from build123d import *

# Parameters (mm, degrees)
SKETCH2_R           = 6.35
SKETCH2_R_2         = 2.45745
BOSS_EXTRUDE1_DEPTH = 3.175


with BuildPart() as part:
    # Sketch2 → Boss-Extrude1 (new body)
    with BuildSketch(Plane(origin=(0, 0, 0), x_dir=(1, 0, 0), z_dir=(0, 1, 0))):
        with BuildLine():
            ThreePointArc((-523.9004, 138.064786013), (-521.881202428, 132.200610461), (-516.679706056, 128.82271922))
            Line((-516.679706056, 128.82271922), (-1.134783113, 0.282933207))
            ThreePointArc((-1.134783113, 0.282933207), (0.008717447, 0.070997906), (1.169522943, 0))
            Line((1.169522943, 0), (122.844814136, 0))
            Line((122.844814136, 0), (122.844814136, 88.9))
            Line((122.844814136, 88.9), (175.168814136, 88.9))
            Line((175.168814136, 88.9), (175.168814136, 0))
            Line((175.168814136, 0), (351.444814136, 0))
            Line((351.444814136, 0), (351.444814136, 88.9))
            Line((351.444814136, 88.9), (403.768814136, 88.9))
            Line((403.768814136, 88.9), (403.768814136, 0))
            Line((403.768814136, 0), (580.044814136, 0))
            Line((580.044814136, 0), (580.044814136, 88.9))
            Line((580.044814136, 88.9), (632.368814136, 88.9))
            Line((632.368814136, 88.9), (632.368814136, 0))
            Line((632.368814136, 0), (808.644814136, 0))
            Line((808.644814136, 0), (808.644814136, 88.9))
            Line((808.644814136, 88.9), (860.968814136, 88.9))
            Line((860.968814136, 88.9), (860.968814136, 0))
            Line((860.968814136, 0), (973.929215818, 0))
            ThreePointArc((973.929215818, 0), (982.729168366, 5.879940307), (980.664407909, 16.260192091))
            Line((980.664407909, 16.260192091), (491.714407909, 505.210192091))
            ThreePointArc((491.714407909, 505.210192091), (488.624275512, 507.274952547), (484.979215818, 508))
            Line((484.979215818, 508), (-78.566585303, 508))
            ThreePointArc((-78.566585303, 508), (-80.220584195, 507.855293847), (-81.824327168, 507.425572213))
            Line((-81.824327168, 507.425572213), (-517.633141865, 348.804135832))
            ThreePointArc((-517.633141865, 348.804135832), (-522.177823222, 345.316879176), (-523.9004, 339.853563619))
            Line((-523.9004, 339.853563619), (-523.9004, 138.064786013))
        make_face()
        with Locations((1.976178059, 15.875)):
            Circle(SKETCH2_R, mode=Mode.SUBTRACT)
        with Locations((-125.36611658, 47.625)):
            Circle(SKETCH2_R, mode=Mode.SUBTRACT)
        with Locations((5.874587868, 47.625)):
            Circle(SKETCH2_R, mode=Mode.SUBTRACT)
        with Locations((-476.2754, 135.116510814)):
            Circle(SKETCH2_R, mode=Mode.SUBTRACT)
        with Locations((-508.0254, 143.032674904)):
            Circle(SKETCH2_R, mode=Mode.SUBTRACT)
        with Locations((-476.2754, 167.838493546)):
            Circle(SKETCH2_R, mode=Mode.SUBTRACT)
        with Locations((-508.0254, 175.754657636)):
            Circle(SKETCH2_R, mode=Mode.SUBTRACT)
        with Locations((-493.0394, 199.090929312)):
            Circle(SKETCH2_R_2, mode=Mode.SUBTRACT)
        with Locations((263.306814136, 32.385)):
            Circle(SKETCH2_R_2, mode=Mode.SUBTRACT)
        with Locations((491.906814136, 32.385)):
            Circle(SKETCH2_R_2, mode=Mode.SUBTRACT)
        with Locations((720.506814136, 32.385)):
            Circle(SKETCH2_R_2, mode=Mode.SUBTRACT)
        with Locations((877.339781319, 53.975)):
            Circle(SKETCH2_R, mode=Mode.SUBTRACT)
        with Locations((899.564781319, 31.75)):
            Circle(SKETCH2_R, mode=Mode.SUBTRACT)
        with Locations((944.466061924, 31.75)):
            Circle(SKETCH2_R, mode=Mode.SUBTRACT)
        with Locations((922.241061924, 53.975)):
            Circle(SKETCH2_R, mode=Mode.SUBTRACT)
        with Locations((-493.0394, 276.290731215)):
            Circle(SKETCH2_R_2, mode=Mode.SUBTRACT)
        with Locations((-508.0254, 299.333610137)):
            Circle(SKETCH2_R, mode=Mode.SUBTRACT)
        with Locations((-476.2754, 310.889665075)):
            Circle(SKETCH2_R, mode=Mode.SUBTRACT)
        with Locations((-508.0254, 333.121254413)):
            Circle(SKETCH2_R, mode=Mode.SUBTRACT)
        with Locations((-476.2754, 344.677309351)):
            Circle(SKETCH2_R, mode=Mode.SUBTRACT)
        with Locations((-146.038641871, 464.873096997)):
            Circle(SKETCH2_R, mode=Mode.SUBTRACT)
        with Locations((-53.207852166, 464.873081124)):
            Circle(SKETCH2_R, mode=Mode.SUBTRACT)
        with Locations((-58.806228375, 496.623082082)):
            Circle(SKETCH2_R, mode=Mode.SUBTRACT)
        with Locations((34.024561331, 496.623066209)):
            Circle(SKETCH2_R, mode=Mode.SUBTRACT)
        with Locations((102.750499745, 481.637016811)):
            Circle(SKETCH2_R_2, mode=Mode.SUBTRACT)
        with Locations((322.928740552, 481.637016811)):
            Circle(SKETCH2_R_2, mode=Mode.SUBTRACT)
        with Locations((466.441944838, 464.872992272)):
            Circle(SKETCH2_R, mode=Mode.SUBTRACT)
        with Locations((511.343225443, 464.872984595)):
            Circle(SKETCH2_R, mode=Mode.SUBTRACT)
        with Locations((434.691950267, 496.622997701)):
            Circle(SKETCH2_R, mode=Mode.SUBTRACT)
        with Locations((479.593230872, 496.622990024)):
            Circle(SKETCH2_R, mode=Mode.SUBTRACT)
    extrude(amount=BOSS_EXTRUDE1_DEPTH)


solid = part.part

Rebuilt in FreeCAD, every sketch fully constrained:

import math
import FreeCAD as App
import Part
import Sketcher
Q = App.Units.Quantity

doc = App.newDocument("Part")
params = doc.addObject("Spreadsheet::Sheet", "Params")
for row, (alias, value) in enumerate([
    ("sketch1_diameter", "0.5 in"),
    ("sketch1_height", "3.5 in"),
    ("sketch1_radius", "0.375 in"),
    ("sketch1_width", "2.06 in"),
    ("sketch1_width2", "6.94 in"),
    ("pad1_length", "0.125 in"),
], start=1):
    params.set(f"A{row}", alias)
    params.set(f"B{row}", "=" + value)
    params.setAlias(f"B{row}", alias)

body = doc.addObject("PartDesign::Body", "Body")

sketch1 = body.newObject("Sketcher::SketchObject", "Sketch")
sketch1.AttachmentSupport = (doc.getObject("XZ_Plane"), [""])
sketch1.MapMode = "FlatFace"
sketch1.addGeometry(Part.ArcOfCircle(Part.Circle(App.Vector(-514.4, -138.1, 0), App.Vector(0, 0, 1), 9.5), math.radians(104), math.radians(180)), False)
sketch1.addGeometry(Part.LineSegment(App.Vector(-516.7, -128.8, 0), App.Vector(-1.1, -0.3, 0)), False)
sketch1.addGeometry(Part.ArcOfCircle(Part.Circle(App.Vector(1.2, -9.5, 0), App.Vector(0, 0, 1), 9.5), math.radians(90), math.radians(104)), False)
sketch1.addGeometry(Part.LineSegment(App.Vector(1.2, 0, 0), App.Vector(122.8, 0, 0)), False)
sketch1.addGeometry(Part.LineSegment(App.Vector(122.8, 0, 0), App.Vector(122.8, -88.9, 0)), False)
sketch1.addGeometry(Part.LineSegment(App.Vector(122.8, -88.9, 0), App.Vector(175.2, -88.9, 0)), False)
sketch1.addGeometry(Part.LineSegment(App.Vector(175.2, -88.9, 0), App.Vector(175.2, 0, 0)), False)
sketch1.addGeometry(Part.LineSegment(App.Vector(175.2, 0, 0), App.Vector(351.4, 0, 0)), False)
sketch1.addGeometry(Part.LineSegment(App.Vector(351.4, 0, 0), App.Vector(351.4, -88.9, 0)), False)
sketch1.addGeometry(Part.LineSegment(App.Vector(351.4, -88.9, 0), App.Vector(403.8, -88.9, 0)), False)
sketch1.addGeometry(Part.LineSegment(App.Vector(403.8, -88.9, 0), App.Vector(403.8, 0, 0)), False)
sketch1.addGeometry(Part.LineSegment(App.Vector(403.8, 0, 0), App.Vector(580, 0, 0)), False)
sketch1.addGeometry(Part.LineSegment(App.Vector(580, 0, 0), App.Vector(580, -88.9, 0)), False)
sketch1.addGeometry(Part.LineSegment(App.Vector(580, -88.9, 0), App.Vector(632.4, -88.9, 0)), False)
sketch1.addGeometry(Part.LineSegment(App.Vector(632.4, -88.9, 0), App.Vector(632.4, 0, 0)), False)
sketch1.addGeometry(Part.LineSegment(App.Vector(632.4, 0, 0), App.Vector(808.6, 0, 0)), False)
sketch1.addGeometry(Part.LineSegment(App.Vector(808.6, 0, 0), App.Vector(808.6, -88.9, 0)), False)
sketch1.addGeometry(Part.LineSegment(App.Vector(808.6, -88.9, 0), App.Vector(861, -88.9, 0)), False)
sketch1.addGeometry(Part.LineSegment(App.Vector(861, -88.9, 0), App.Vector(861, 0, 0)), False)
sketch1.addGeometry(Part.LineSegment(App.Vector(861, 0, 0), App.Vector(973.9, 0, 0)), False)
sketch1.addGeometry(Part.ArcOfCircle(Part.Circle(App.Vector(973.9, -9.5, 0), App.Vector(0, 0, 1), 9.5), math.radians(-45), math.radians(90)), False)
sketch1.addGeometry(Part.LineSegment(App.Vector(980.7, -16.3, 0), App.Vector(491.7, -505.2, 0)), False)
sketch1.addGeometry(Part.ArcOfCircle(Part.Circle(App.Vector(485, -498.5, 0), App.Vector(0, 0, 1), 9.5), math.radians(-90), math.radians(-45)), False)
sketch1.addGeometry(Part.LineSegment(App.Vector(485, -508, 0), App.Vector(-78.6, -508, 0)), False)
sketch1.addGeometry(Part.ArcOfCircle(Part.Circle(App.Vector(-78.6, -498.5, 0), App.Vector(0, 0, 1), 9.5), math.radians(-110), math.radians(-90)), False)
sketch1.addGeometry(Part.LineSegment(App.Vector(-81.8, -507.4, 0), App.Vector(-517.6, -348.8, 0)), False)
sketch1.addGeometry(Part.ArcOfCircle(Part.Circle(App.Vector(-514.4, -339.9, 0), App.Vector(0, 0, 1), 9.5), math.radians(180), math.radians(250)), False)
sketch1.addGeometry(Part.LineSegment(App.Vector(-523.9, -339.9, 0), App.Vector(-523.9, -138.1, 0)), False)
sketch1.addGeometry(Part.Circle(App.Vector(2, -15.9, 0), App.Vector(0, 0, 1), 6.3), False)
sketch1.addGeometry(Part.Circle(App.Vector(-125.4, -47.6, 0), App.Vector(0, 0, 1), 6.3), False)
sketch1.addGeometry(Part.Circle(App.Vector(5.9, -47.6, 0), App.Vector(0, 0, 1), 6.3), False)
sketch1.addGeometry(Part.Circle(App.Vector(-476.3, -135.1, 0), App.Vector(0, 0, 1), 6.3), False)
sketch1.addGeometry(Part.Circle(App.Vector(-508, -143, 0), App.Vector(0, 0, 1), 6.3), False)
sketch1.addGeometry(Part.Circle(App.Vector(-476.3, -167.8, 0), App.Vector(0, 0, 1), 6.3), False)
sketch1.addGeometry(Part.Circle(App.Vector(-508, -175.8, 0), App.Vector(0, 0, 1), 6.3), False)
sketch1.addGeometry(Part.Circle(App.Vector(-493, -199.1, 0), App.Vector(0, 0, 1), 2.5), False)
sketch1.addGeometry(Part.Circle(App.Vector(263.3, -32.4, 0), App.Vector(0, 0, 1), 2.5), False)
sketch1.addGeometry(Part.Circle(App.Vector(491.9, -32.4, 0), App.Vector(0, 0, 1), 2.5), False)
sketch1.addGeometry(Part.Circle(App.Vector(720.5, -32.4, 0), App.Vector(0, 0, 1), 2.5), False)
sketch1.addGeometry(Part.Circle(App.Vector(899.6, -31.8, 0), App.Vector(0, 0, 1), 6.3), False)
sketch1.addGeometry(Part.Circle(App.Vector(944.5, -31.8, 0), App.Vector(0, 0, 1), 6.3), False)
sketch1.addGeometry(Part.Circle(App.Vector(877.3, -54, 0), App.Vector(0, 0, 1), 6.3), False)
sketch1.addGeometry(Part.Circle(App.Vector(922.2, -54, 0), App.Vector(0, 0, 1), 6.3), False)
sketch1.addGeometry(Part.Circle(App.Vector(-493, -276.3, 0), App.Vector(0, 0, 1), 2.5), False)
sketch1.addGeometry(Part.Circle(App.Vector(-508, -299.3, 0), App.Vector(0, 0, 1), 6.3), False)
sketch1.addGeometry(Part.Circle(App.Vector(-476.3, -310.9, 0), App.Vector(0, 0, 1), 6.3), False)
sketch1.addGeometry(Part.Circle(App.Vector(-508, -333.1, 0), App.Vector(0, 0, 1), 6.3), False)
sketch1.addGeometry(Part.Circle(App.Vector(-476.3, -344.7, 0), App.Vector(0, 0, 1), 6.3), False)
sketch1.addGeometry(Part.Circle(App.Vector(-146, -464.9, 0), App.Vector(0, 0, 1), 6.3), False)
sketch1.addGeometry(Part.Circle(App.Vector(-53.2, -464.9, 0), App.Vector(0, 0, 1), 6.3), False)
sketch1.addGeometry(Part.Circle(App.Vector(-58.8, -496.6, 0), App.Vector(0, 0, 1), 6.3), False)
sketch1.addGeometry(Part.Circle(App.Vector(34, -496.6, 0), App.Vector(0, 0, 1), 6.3), False)
sketch1.addGeometry(Part.Circle(App.Vector(102.8, -481.6, 0), App.Vector(0, 0, 1), 2.5), False)
sketch1.addGeometry(Part.Circle(App.Vector(322.9, -481.6, 0), App.Vector(0, 0, 1), 2.5), False)
sketch1.addGeometry(Part.Circle(App.Vector(466.4, -464.9, 0), App.Vector(0, 0, 1), 6.3), False)
sketch1.addGeometry(Part.Circle(App.Vector(511.3, -464.9, 0), App.Vector(0, 0, 1), 6.3), False)
sketch1.addGeometry(Part.Circle(App.Vector(434.7, -496.6, 0), App.Vector(0, 0, 1), 6.3), False)
sketch1.addGeometry(Part.Circle(App.Vector(479.6, -496.6, 0), App.Vector(0, 0, 1), 6.3), False)
sketch1.addConstraint(Sketcher.Constraint("Tangent", 0, 1, 1, 1))
sketch1.addConstraint(Sketcher.Constraint("Tangent", 1, 2, 2, 2))
sketch1.addConstraint(Sketcher.Constraint("Tangent", 2, 1, 3, 1))
sketch1.addConstraint(Sketcher.Constraint("Coincident", 3, 2, 4, 1))
sketch1.addConstraint(Sketcher.Constraint("Coincident", 4, 2, 5, 1))
sketch1.addConstraint(Sketcher.Constraint("Coincident", 5, 2, 6, 1))
sketch1.addConstraint(Sketcher.Constraint("Coincident", 6, 2, 7, 1))
sketch1.addConstraint(Sketcher.Constraint("Coincident", 7, 2, 8, 1))
sketch1.addConstraint(Sketcher.Constraint("Coincident", 8, 2, 9, 1))
sketch1.addConstraint(Sketcher.Constraint("Coincident", 9, 2, 10, 1))
sketch1.addConstraint(Sketcher.Constraint("Coincident", 10, 2, 11, 1))
sketch1.addConstraint(Sketcher.Constraint("Coincident", 11, 2, 12, 1))
sketch1.addConstraint(Sketcher.Constraint("Coincident", 12, 2, 13, 1))
sketch1.addConstraint(Sketcher.Constraint("Coincident", 13, 2, 14, 1))
sketch1.addConstraint(Sketcher.Constraint("Coincident", 14, 2, 15, 1))
sketch1.addConstraint(Sketcher.Constraint("Coincident", 15, 2, 16, 1))
sketch1.addConstraint(Sketcher.Constraint("Coincident", 16, 2, 17, 1))
sketch1.addConstraint(Sketcher.Constraint("Coincident", 17, 2, 18, 1))
sketch1.addConstraint(Sketcher.Constraint("Coincident", 18, 2, 19, 1))
sketch1.addConstraint(Sketcher.Constraint("Tangent", 19, 2, 20, 2))
sketch1.addConstraint(Sketcher.Constraint("Tangent", 20, 1, 21, 1))
sketch1.addConstraint(Sketcher.Constraint("Tangent", 21, 2, 22, 2))
sketch1.addConstraint(Sketcher.Constraint("Tangent", 22, 1, 23, 1))
sketch1.addConstraint(Sketcher.Constraint("Tangent", 23, 2, 24, 2))
sketch1.addConstraint(Sketcher.Constraint("Tangent", 24, 1, 25, 1))
sketch1.addConstraint(Sketcher.Constraint("Tangent", 25, 2, 26, 2))
sketch1.addConstraint(Sketcher.Constraint("Tangent", 26, 1, 27, 1))
sketch1.addConstraint(Sketcher.Constraint("Tangent", 27, 2, 0, 2))
sketch1.addConstraint(Sketcher.Constraint("Horizontal", 3))
sketch1.addConstraint(Sketcher.Constraint("Vertical", 4))
sketch1.addConstraint(Sketcher.Constraint("Horizontal", 5))
sketch1.addConstraint(Sketcher.Constraint("Vertical", 6))
sketch1.addConstraint(Sketcher.Constraint("Horizontal", 7))
sketch1.addConstraint(Sketcher.Constraint("Vertical", 8))
sketch1.addConstraint(Sketcher.Constraint("Horizontal", 9))
sketch1.addConstraint(Sketcher.Constraint("Vertical", 10))
sketch1.addConstraint(Sketcher.Constraint("Horizontal", 11))
sketch1.addConstraint(Sketcher.Constraint("Vertical", 12))
sketch1.addConstraint(Sketcher.Constraint("Horizontal", 13))
sketch1.addConstraint(Sketcher.Constraint("Vertical", 14))
sketch1.addConstraint(Sketcher.Constraint("Horizontal", 15))
sketch1.addConstraint(Sketcher.Constraint("Vertical", 16))
sketch1.addConstraint(Sketcher.Constraint("Horizontal", 17))
sketch1.addConstraint(Sketcher.Constraint("Vertical", 18))
sketch1.addConstraint(Sketcher.Constraint("Horizontal", 19))
sketch1.addConstraint(Sketcher.Constraint("Horizontal", 23))
sketch1.addConstraint(Sketcher.Constraint("Vertical", 27))
sketch1.addConstraint(Sketcher.Constraint("Equal", 0, 2))
sketch1.addConstraint(Sketcher.Constraint("Equal", 2, 20))
sketch1.addConstraint(Sketcher.Constraint("Equal", 20, 22))
sketch1.addConstraint(Sketcher.Constraint("Equal", 22, 24))
sketch1.addConstraint(Sketcher.Constraint("Equal", 24, 26))
sketch1.addConstraint(Sketcher.Constraint("Equal", 28, 29))
sketch1.addConstraint(Sketcher.Constraint("Equal", 29, 30))
sketch1.addConstraint(Sketcher.Constraint("Equal", 30, 31))
sketch1.addConstraint(Sketcher.Constraint("Equal", 31, 32))
sketch1.addConstraint(Sketcher.Constraint("Equal", 32, 33))
sketch1.addConstraint(Sketcher.Constraint("Equal", 33, 34))
sketch1.addConstraint(Sketcher.Constraint("Equal", 35, 36))
sketch1.addConstraint(Sketcher.Constraint("Equal", 36, 37))
sketch1.addConstraint(Sketcher.Constraint("Equal", 37, 38))
sketch1.addConstraint(Sketcher.Constraint("Equal", 34, 39))
sketch1.addConstraint(Sketcher.Constraint("Equal", 39, 40))
sketch1.addConstraint(Sketcher.Constraint("Equal", 40, 41))
sketch1.addConstraint(Sketcher.Constraint("Equal", 41, 42))
sketch1.addConstraint(Sketcher.Constraint("Equal", 38, 43))
sketch1.addConstraint(Sketcher.Constraint("Equal", 42, 44))
sketch1.addConstraint(Sketcher.Constraint("Equal", 44, 45))
sketch1.addConstraint(Sketcher.Constraint("Equal", 45, 46))
sketch1.addConstraint(Sketcher.Constraint("Equal", 46, 47))
sketch1.addConstraint(Sketcher.Constraint("Equal", 47, 48))
sketch1.addConstraint(Sketcher.Constraint("Equal", 48, 49))
sketch1.addConstraint(Sketcher.Constraint("Equal", 49, 50))
sketch1.addConstraint(Sketcher.Constraint("Equal", 50, 51))
sketch1.addConstraint(Sketcher.Constraint("Equal", 43, 52))
sketch1.addConstraint(Sketcher.Constraint("Equal", 52, 53))
sketch1.addConstraint(Sketcher.Constraint("Equal", 51, 54))
sketch1.addConstraint(Sketcher.Constraint("Equal", 54, 55))
sketch1.addConstraint(Sketcher.Constraint("Equal", 55, 56))
sketch1.addConstraint(Sketcher.Constraint("Equal", 56, 57))
sketch1.addConstraint(Sketcher.Constraint("PointOnObject", 2, 1, -1))
sketch1.addConstraint(Sketcher.Constraint("PointOnObject", 6, 2, -1))
sketch1.addConstraint(Sketcher.Constraint("PointOnObject", 10, 2, -1))
sketch1.addConstraint(Sketcher.Constraint("PointOnObject", 14, 2, -1))
sketch1.addConstraint(Sketcher.Constraint("PointOnObject", 18, 2, -1))
sketch1.addConstraint(Sketcher.Constraint("Horizontal", 29, 3, 30, 3))
sketch1.addConstraint(Sketcher.Constraint("Horizontal", 36, 3, 37, 3))
sketch1.addConstraint(Sketcher.Constraint("Horizontal", 37, 3, 38, 3))
sketch1.addConstraint(Sketcher.Constraint("Horizontal", 39, 3, 40, 3))
sketch1.addConstraint(Sketcher.Constraint("Horizontal", 41, 3, 42, 3))
sketch1.addConstraint(Sketcher.Constraint("Horizontal", 52, 3, 53, 3))
sketch1.addConstraint(Sketcher.Constraint("Horizontal", 5, 2, 8, 2))
sketch1.addConstraint(Sketcher.Constraint("Horizontal", 9, 2, 12, 2))
sketch1.addConstraint(Sketcher.Constraint("Horizontal", 13, 2, 16, 2))
sketch1.addConstraint(Sketcher.Constraint("Vertical", 31, 3, 33, 3))
sketch1.addConstraint(Sketcher.Constraint("Vertical", 32, 3, 34, 3))
sketch1.addConstraint(Sketcher.Constraint("Vertical", 35, 3, 43, 3))
sketch1.addConstraint(Sketcher.Constraint("Vertical", 34, 3, 44, 3))
sketch1.addConstraint(Sketcher.Constraint("Vertical", 33, 3, 45, 3))
sketch1.addConstraint(Sketcher.Constraint("Vertical", 44, 3, 46, 3))
sketch1.addConstraint(Sketcher.Constraint("Vertical", 45, 3, 47, 3))
sketch1.addConstraint(Sketcher.Constraint("Equal", 5, 9))
sketch1.addConstraint(Sketcher.Constraint("Equal", 7, 11))
sketch1.addConstraint(Sketcher.Constraint("Equal", 9, 13))
sketch1.addConstraint(Sketcher.Constraint("Equal", 11, 15))
sketch1.addConstraint(Sketcher.Constraint("Equal", 13, 17))
sketch1.addConstraint(Sketcher.Constraint("Diameter", 28, Q("0.5 in")))
sketch1.addConstraint(Sketcher.Constraint("DistanceY", 4, 2, 4, 1, Q("3.5 in")))
sketch1.addConstraint(Sketcher.Constraint("DistanceY", 22, 1, -1, 1, Q("20 in")))
sketch1.addConstraint(Sketcher.Constraint("Angle", 1, Q("14 deg")))
sketch1.addConstraint(Sketcher.Constraint("Angle", 21, Q("-135 deg")))
sketch1.addConstraint(Sketcher.Constraint("Angle", 25, Q("160 deg")))
sketch1.addConstraint(Sketcher.Constraint("Radius", 0, Q("0.375 in")))
sketch1.addConstraint(Sketcher.Constraint("Diameter", 35, Q("0.1935 in")))
sketch1.addConstraint(Sketcher.Constraint("DistanceX", 5, 1, 5, 2, Q("2.06 in")))
sketch1.addConstraint(Sketcher.Constraint("DistanceX", 7, 1, 7, 2, Q("6.94 in")))
sketch1.addConstraint(Sketcher.Constraint("DistanceY", 39, 3, -1, 1, Q("1.25 in")))
sketch1.addConstraint(Sketcher.Constraint("DistanceX", 0, 3, -1, 1, Q("20.251 in")))
sketch1.addConstraint(Sketcher.Constraint("DistanceY", 28, 3, -1, 1, Q("0.625 in")))
sketch1.addConstraint(Sketcher.Constraint("DistanceY", 29, 3, -1, 1, Q("1.875 in")))
sketch1.addConstraint(Sketcher.Constraint("DistanceX", 31, 3, -1, 1, Q("18.751 in")))
sketch1.addConstraint(Sketcher.Constraint("DistanceX", 32, 3, -1, 1, Q("20.001 in")))
sketch1.addConstraint(Sketcher.Constraint("DistanceX", 35, 3, -1, 1, Q("19.411 in")))
sketch1.addConstraint(Sketcher.Constraint("DistanceY", 36, 3, -1, 1, Q("1.275 in")))
sketch1.addConstraint(Sketcher.Constraint("DistanceY", 41, 3, -1, 1, Q("2.125 in")))
sketch1.addConstraint(Sketcher.Constraint("DistanceX", 19, 1, 19, 2, 112.960402))
sketch1.addConstraint(Sketcher.Constraint("DistanceX", 23, 2, 23, 1, 563.545801))
sketch1.addConstraint(Sketcher.Constraint("DistanceX", 3, 1, 3, 2, 121.675291))
sketch1.addConstraint(Sketcher.Constraint("DistanceX", -1, 1, 52, 3, 102.7505))
sketch1.addConstraint(Sketcher.Constraint("DistanceY", 27, 1, 27, 2, 201.788778))
sketch1.addConstraint(Sketcher.Constraint("DistanceX", -1, 1, 28, 3, 1.976178))
sketch1.addConstraint(Sketcher.Constraint("DistanceY", 31, 3, -1, 1, 135.116511))
sketch1.addConstraint(Sketcher.Constraint("DistanceY", 35, 3, -1, 1, 199.090929))
sketch1.addConstraint(Sketcher.Constraint("DistanceX", -1, 1, 39, 3, 899.564781))
sketch1.addConstraint(Sketcher.Constraint("DistanceX", -1, 1, 40, 3, 944.466062))
sketch1.addConstraint(Sketcher.Constraint("DistanceX", -1, 1, 41, 3, 877.339781))
sketch1.addConstraint(Sketcher.Constraint("DistanceX", -1, 1, 42, 3, 922.241062))
sketch1.addConstraint(Sketcher.Constraint("DistanceY", 43, 3, -1, 1, 276.290731))
sketch1.addConstraint(Sketcher.Constraint("DistanceY", 44, 3, -1, 1, 299.33361))
sketch1.addConstraint(Sketcher.Constraint("DistanceY", 47, 3, -1, 1, 344.677309))
sketch1.addConstraint(Sketcher.Constraint("DistanceX", 48, 3, -1, 1, 146.038642))
sketch1.addConstraint(Sketcher.Constraint("DistanceY", 49, 3, -1, 1, 464.873081))
sketch1.addConstraint(Sketcher.Constraint("DistanceX", 50, 3, -1, 1, 58.806228))
sketch1.addConstraint(Sketcher.Constraint("DistanceX", -1, 1, 51, 3, 34.024561))
sketch1.addConstraint(Sketcher.Constraint("DistanceX", -1, 1, 53, 3, 322.928741))
sketch1.addConstraint(Sketcher.Constraint("DistanceX", -1, 1, 56, 3, 434.69195))
sketch1.addConstraint(Sketcher.Constraint("DistanceX", -1, 1, 57, 3, 479.593231))
sketch1.addConstraint(Sketcher.Constraint("DistanceY", 57, 3, -1, 1, 496.62299))
sketch1.addConstraint(Sketcher.Constraint("DistanceX", 29, 3, -1, 1, 125.366117))
sketch1.addConstraint(Sketcher.Constraint("DistanceX", -1, 1, 30, 3, 5.874588))
sketch1.addConstraint(Sketcher.Constraint("DistanceY", 32, 3, -1, 1, 143.032675))
sketch1.addConstraint(Sketcher.Constraint("DistanceY", 33, 3, -1, 1, 167.838494))
sketch1.addConstraint(Sketcher.Constraint("DistanceY", 34, 3, -1, 1, 175.754658))
sketch1.addConstraint(Sketcher.Constraint("DistanceX", -1, 1, 36, 3, 263.306814))
sketch1.addConstraint(Sketcher.Constraint("DistanceX", -1, 1, 37, 3, 491.906814))
sketch1.addConstraint(Sketcher.Constraint("DistanceX", -1, 1, 38, 3, 720.506814))
sketch1.addConstraint(Sketcher.Constraint("DistanceY", 45, 3, -1, 1, 310.889665))
sketch1.addConstraint(Sketcher.Constraint("DistanceY", 46, 3, -1, 1, 333.121254))
sketch1.addConstraint(Sketcher.Constraint("DistanceY", 48, 3, -1, 1, 464.873097))
sketch1.addConstraint(Sketcher.Constraint("DistanceX", 49, 3, -1, 1, 53.207852))
sketch1.addConstraint(Sketcher.Constraint("DistanceY", 50, 3, -1, 1, 496.623082))
sketch1.addConstraint(Sketcher.Constraint("DistanceY", 51, 3, -1, 1, 496.623066))
sketch1.addConstraint(Sketcher.Constraint("DistanceY", 52, 3, -1, 1, 481.637017))
sketch1.addConstraint(Sketcher.Constraint("DistanceX", -1, 1, 54, 3, 466.441945))
sketch1.addConstraint(Sketcher.Constraint("DistanceY", 54, 3, -1, 1, 464.872992))
sketch1.addConstraint(Sketcher.Constraint("DistanceX", -1, 1, 55, 3, 511.343225))
sketch1.addConstraint(Sketcher.Constraint("DistanceY", 55, 3, -1, 1, 464.872985))
sketch1.addConstraint(Sketcher.Constraint("DistanceY", 56, 3, -1, 1, 496.622998))
sketch1.setExpression("Constraints[106]", "Params.sketch1_diameter")
sketch1.setExpression("Constraints[107]", "Params.sketch1_height")
sketch1.setExpression("Constraints[112]", "Params.sketch1_radius")
sketch1.setExpression("Constraints[114]", "Params.sketch1_width")
sketch1.setExpression("Constraints[115]", "Params.sketch1_width2")
pad1 = body.newObject("PartDesign::Pad", "Pad")
pad1.Profile = sketch1
pad1.setExpression("Length", "Params.pad1_length")
pad1.Reversed = True

doc.recompute()
